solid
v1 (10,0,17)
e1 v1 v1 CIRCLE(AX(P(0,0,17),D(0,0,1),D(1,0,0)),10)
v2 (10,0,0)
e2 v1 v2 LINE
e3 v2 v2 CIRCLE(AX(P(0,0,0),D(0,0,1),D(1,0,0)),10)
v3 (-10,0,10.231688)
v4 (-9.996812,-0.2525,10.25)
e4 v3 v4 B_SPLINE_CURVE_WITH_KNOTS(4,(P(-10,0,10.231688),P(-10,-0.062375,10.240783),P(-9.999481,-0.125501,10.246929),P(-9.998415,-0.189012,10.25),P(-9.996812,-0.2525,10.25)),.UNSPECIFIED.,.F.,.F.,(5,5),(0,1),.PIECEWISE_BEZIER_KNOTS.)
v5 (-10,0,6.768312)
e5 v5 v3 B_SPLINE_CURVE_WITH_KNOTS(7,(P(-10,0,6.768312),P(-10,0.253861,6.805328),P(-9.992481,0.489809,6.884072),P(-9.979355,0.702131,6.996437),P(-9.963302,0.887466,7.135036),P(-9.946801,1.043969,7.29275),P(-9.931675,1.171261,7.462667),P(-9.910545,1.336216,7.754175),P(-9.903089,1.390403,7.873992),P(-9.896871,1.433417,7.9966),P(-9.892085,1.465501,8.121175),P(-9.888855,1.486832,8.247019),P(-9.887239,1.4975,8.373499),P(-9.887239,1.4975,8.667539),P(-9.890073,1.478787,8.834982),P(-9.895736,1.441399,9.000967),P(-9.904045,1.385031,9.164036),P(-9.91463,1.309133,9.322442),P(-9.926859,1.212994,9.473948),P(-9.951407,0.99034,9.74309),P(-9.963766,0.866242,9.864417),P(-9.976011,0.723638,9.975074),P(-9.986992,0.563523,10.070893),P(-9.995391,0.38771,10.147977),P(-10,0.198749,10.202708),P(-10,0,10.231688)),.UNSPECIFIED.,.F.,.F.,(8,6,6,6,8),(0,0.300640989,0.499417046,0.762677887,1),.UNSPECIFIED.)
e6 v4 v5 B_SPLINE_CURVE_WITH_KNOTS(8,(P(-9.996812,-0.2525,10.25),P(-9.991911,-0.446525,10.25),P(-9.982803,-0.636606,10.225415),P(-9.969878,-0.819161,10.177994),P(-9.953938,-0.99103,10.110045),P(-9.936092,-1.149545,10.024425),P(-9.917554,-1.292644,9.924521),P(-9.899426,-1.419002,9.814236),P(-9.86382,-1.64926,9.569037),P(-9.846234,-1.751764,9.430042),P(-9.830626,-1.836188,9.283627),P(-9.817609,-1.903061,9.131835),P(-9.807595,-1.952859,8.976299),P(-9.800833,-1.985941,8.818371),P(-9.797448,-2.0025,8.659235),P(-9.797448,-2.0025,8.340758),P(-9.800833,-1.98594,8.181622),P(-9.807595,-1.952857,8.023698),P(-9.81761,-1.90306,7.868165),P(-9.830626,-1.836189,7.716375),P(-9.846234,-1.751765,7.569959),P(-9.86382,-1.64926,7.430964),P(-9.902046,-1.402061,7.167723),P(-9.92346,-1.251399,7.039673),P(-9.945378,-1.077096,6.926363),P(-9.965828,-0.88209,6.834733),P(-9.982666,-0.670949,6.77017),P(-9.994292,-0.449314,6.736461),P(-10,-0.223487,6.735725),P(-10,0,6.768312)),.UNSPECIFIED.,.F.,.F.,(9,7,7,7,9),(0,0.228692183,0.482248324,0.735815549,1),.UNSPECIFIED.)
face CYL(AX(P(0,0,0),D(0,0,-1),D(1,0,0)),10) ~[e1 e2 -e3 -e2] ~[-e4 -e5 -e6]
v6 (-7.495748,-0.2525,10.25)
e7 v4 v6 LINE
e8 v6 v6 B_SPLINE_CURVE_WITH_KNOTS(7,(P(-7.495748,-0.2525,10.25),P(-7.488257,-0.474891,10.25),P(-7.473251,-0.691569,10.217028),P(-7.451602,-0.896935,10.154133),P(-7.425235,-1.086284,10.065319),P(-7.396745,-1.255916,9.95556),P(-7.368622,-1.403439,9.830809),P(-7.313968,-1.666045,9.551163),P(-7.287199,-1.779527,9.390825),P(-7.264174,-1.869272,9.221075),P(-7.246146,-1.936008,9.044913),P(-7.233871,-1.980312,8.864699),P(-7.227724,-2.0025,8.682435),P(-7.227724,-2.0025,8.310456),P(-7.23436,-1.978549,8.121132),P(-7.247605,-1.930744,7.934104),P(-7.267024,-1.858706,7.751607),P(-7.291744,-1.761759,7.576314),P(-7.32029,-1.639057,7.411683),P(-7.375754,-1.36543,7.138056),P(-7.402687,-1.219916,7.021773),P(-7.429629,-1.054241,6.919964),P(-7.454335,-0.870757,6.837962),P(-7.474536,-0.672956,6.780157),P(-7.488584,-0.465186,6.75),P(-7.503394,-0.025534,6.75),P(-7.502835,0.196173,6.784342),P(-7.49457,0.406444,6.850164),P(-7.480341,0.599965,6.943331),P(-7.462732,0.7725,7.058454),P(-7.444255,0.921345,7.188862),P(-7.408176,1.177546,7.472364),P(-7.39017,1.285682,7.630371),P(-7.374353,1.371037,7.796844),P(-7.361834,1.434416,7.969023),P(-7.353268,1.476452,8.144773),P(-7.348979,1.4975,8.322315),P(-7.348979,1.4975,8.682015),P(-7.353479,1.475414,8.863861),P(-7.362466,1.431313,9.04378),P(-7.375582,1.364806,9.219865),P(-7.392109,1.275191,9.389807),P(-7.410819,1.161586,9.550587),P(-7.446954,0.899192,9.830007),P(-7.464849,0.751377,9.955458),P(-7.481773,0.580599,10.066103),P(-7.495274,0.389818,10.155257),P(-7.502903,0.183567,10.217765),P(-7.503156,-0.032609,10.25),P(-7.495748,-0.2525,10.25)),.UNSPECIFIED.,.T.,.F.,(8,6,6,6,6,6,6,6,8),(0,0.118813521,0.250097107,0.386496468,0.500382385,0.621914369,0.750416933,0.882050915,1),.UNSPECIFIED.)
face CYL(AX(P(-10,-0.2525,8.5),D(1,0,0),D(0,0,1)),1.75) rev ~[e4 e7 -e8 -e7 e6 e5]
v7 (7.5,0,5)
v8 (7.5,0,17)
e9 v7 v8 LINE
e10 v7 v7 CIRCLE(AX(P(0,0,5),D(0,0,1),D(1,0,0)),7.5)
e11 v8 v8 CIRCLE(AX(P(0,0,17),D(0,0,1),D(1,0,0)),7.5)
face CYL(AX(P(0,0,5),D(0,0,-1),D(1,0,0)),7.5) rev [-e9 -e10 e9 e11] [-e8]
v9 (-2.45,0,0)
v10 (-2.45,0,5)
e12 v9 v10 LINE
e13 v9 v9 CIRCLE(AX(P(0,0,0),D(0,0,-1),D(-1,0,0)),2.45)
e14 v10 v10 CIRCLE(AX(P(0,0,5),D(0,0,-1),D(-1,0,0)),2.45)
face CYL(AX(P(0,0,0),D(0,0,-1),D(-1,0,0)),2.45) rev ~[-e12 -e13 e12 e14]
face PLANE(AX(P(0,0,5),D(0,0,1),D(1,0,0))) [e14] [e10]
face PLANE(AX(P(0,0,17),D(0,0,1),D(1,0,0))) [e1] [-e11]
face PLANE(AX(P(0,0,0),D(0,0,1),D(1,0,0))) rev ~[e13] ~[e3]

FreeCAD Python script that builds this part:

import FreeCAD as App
import Part
import Sketcher
from FreeCAD import Vector

doc = App.newDocument("Part")
body = doc.addObject("PartDesign::Body", "Body")

sketch1 = body.newObject("Sketcher::SketchObject", "Sketch")
sketch1.AttachmentSupport = (doc.getObject("XY_Plane"), [""])
sketch1.MapMode = "FlatFace"
sketch1.addGeometry(Part.Circle(Vector(0, 0, 0), Vector(0, 0, 1), 10), False)
sketch1.addConstraint([
    Sketcher.Constraint("Coincident", 0, 3, -1, 1),
    Sketcher.Constraint("Diameter", 0, 20.0),
])
pad1 = body.newObject("PartDesign::Pad", "Pad")
pad1.Profile = sketch1
pad1.Length = 5

sketch2 = body.newObject("Sketcher::SketchObject", "Sketch001")
sketch2.AttachmentSupport = (doc.getObject("XY_Plane"), [""])
sketch2.MapMode = "FlatFace"
sketch2.AttachmentOffset = App.Placement(Vector(0, 0, 5), App.Rotation())
sketch2.addGeometry([
    Part.Circle(Vector(0, 0, 0), Vector(0, 0, 1), 10),
    Part.Circle(Vector(0, 0, 0), Vector(0, 0, 1), 8),
], False)
sketch2.addConstraint([
    Sketcher.Constraint("Coincident", 0, 3, -1, 1),
    Sketcher.Constraint("Coincident", 1, 3, -1, 1),
    Sketcher.Constraint("Diameter", 1, 15.0),
    Sketcher.Constraint("Diameter", 0, 20.0),
])
pad2 = body.newObject("PartDesign::Pad", "Pad001")
pad2.Profile = sketch2
pad2.Length = 14

sketch3 = body.newObject("Sketcher::SketchObject", "Sketch002")
sketch3.AttachmentSupport = (doc.getObject("XY_Plane"), [""])
sketch3.MapMode = "FlatFace"
sketch3.addGeometry(Part.Circle(Vector(0, 0, 0), Vector(0, 0, 1), 2.5), False)
sketch3.addConstraint([
    Sketcher.Constraint("Coincident", 0, 3, -1, 1),
    Sketcher.Constraint("Diameter", 0, 4.9),
])
pocket1 = body.newObject("PartDesign::Pocket", "Pocket")
pocket1.Profile = sketch3
pocket1.Length = 5
pocket1.Reversed = True

sketch4 = body.newObject("Sketcher::SketchObject", "Sketch003")
sketch4.AttachmentSupport = (doc.getObject("XY_Plane"), [""])
sketch4.MapMode = "FlatFace"
sketch4.AttachmentOffset = App.Placement(Vector(0, 0, 19), App.Rotation())
sketch4.addGeometry([
    Part.Circle(Vector(0, 0, 0), Vector(0, 0, 1), 10),
    Part.Circle(Vector(0, 0, 0), Vector(0, 0, 1), 8),
], False)
sketch4.addConstraint([
    Sketcher.Constraint("Coincident", 0, 3, -1, 1),
    Sketcher.Constraint("Coincident", 1, 3, -1, 1),
    Sketcher.Constraint("Diameter", 0, 20.0),
    Sketcher.Constraint("Diameter", 1, 15.0),
])
pocket2 = body.newObject("PartDesign::Pocket", "Pocket001")
pocket2.Profile = sketch4
pocket2.Length = 2

sketch5 = body.newObject("Sketcher::SketchObject", "Sketch004")
sketch5.AttachmentSupport = (doc.getObject("YZ_Plane"), [""])
sketch5.MapMode = "FlatFace"
sketch5.AttachmentOffset = App.Placement(Vector(0, 0, -10), App.Rotation())
sketch5.addGeometry(Part.Circle(Vector(-0.3, 8.5, 0), Vector(0, 0, 1), 1.8), False)
sketch5.addConstraint([
    Sketcher.Constraint("Diameter", 0, 3.5),
    Sketcher.Constraint("DistanceY", -1, 1, 0, 3, 8.5),
    Sketcher.Constraint("DistanceX", 0, 3, -1, 1, 0.2525),
])
doc.recompute()
hole = body.newObject("PartDesign::Hole", "Hole")
hole.Profile = sketch5
hole.ThreadType = "None"
hole.Diameter = 3.5
hole.DepthType = "Dimension"
hole.Depth = 8
hole.DrillPoint = "Angled"
hole.DrillPointAngle = 118
hole.Reversed = True

doc.recompute()
